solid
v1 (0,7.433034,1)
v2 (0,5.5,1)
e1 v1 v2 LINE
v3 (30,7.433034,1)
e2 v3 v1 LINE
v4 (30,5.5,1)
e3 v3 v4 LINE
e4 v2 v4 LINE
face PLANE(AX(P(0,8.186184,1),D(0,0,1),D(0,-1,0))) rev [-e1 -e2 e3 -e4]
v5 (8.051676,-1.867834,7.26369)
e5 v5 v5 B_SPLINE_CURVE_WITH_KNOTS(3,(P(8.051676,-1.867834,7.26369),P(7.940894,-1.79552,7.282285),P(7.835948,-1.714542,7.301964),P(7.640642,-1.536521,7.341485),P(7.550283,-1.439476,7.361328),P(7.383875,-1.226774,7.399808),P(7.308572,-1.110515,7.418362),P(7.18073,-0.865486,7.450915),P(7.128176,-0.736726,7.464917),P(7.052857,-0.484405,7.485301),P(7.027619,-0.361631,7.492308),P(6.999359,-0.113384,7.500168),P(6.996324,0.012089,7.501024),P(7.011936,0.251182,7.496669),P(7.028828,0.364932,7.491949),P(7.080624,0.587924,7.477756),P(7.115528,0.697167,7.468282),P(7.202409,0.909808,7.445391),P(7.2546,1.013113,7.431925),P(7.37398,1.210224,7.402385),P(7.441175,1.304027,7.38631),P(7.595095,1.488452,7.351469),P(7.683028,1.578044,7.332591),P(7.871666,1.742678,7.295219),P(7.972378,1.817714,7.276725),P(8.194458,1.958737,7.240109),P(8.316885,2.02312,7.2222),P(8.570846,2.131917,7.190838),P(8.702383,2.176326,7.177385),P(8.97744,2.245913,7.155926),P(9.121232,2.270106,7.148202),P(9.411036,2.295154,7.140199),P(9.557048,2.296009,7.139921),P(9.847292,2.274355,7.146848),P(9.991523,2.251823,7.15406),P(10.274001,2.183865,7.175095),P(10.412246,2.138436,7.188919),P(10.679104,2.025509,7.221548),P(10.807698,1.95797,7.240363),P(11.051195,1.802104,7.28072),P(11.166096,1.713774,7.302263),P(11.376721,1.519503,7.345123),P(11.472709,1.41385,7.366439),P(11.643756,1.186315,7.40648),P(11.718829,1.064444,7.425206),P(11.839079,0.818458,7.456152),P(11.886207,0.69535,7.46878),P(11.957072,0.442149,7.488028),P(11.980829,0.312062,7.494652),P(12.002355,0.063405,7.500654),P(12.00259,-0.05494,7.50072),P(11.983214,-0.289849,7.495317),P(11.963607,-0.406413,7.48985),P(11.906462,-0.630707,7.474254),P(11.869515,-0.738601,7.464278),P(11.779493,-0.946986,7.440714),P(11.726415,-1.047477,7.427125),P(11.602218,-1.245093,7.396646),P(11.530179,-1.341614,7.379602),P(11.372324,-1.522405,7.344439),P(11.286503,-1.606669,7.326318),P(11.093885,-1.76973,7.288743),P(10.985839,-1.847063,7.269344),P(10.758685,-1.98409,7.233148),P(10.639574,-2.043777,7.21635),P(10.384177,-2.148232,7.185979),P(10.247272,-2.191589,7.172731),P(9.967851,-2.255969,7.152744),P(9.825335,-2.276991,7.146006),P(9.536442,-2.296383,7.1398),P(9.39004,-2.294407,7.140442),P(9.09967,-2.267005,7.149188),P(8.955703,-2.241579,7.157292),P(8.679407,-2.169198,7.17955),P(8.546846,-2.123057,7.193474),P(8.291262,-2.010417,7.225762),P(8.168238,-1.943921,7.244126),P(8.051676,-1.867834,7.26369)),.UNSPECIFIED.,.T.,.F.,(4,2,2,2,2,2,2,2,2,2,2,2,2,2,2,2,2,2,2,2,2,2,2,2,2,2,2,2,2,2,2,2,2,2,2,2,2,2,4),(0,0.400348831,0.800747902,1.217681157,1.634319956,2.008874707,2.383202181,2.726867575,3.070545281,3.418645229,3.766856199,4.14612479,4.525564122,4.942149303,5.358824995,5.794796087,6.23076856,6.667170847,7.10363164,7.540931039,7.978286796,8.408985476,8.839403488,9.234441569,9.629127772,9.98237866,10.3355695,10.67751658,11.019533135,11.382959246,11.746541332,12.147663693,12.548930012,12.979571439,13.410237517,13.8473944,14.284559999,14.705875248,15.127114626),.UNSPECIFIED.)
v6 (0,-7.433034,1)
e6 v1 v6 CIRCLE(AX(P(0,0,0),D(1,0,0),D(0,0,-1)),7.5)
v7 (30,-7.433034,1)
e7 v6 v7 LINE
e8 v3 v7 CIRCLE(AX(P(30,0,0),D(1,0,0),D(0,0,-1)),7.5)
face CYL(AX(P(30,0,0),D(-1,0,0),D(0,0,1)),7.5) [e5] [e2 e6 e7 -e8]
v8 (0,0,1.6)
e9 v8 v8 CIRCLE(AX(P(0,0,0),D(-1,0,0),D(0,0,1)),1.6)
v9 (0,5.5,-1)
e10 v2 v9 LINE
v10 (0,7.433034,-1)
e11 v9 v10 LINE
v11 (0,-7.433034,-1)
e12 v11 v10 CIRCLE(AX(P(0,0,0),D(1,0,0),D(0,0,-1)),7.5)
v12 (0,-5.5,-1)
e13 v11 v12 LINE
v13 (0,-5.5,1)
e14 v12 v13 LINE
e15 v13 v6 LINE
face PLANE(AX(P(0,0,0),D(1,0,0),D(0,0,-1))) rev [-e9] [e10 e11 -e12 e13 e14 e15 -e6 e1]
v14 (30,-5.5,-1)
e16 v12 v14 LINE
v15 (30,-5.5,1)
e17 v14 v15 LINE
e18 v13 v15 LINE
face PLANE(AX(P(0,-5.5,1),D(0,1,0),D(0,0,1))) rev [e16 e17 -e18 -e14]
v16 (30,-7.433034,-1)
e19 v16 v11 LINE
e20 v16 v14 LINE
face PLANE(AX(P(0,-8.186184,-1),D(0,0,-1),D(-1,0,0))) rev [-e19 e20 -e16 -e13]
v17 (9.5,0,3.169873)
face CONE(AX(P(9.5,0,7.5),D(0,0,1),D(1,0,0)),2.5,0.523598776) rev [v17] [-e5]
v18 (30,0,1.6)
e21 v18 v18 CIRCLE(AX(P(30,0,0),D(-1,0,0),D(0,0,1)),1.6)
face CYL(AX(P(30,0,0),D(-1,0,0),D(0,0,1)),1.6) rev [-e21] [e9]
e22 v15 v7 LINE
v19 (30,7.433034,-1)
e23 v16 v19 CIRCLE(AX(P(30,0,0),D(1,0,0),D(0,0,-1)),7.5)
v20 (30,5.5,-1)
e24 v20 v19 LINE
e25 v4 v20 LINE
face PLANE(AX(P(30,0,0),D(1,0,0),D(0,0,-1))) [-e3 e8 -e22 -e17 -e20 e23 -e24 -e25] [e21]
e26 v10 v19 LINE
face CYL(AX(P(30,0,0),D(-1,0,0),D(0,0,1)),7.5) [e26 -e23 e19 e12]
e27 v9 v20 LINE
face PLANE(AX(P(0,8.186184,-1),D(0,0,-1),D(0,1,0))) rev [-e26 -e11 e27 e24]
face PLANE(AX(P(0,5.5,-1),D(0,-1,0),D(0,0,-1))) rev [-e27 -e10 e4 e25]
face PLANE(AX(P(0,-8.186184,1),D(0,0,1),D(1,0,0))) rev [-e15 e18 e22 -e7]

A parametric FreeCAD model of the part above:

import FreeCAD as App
import Part
import Sketcher
Q = App.Units.Quantity


def add_polygon(sketch, points):
    """Adds a closed chain of lines whose ends are joined by coincident constraints."""
    first, n = sketch.GeometryCount, len(points)
    for a, b in zip(points, points[1:] + points[:1]):
        sketch.addGeometry(Part.LineSegment(App.Vector(*a, 0), App.Vector(*b, 0)), False)
    for i in range(n):
        sketch.addConstraint(Sketcher.Constraint("Coincident", first + i, 2, first + (i + 1) % n, 1))

doc = App.newDocument("Part")
params = doc.addObject("Spreadsheet::Sheet", "Params")
for row, (alias, value) in enumerate([
    ("sketch1_diameter", "15 mm"),
    ("pad1_length", "30 mm"),
    ("sketch2_length", "5 mm"),
    ("groove_angle", "360 deg"),
    ("sketch3_diameter", "3.2 mm"),
    ("sketch4_height", "2 mm"),
], start=1):
    params.set(f"A{row}", alias)
    params.set(f"B{row}", "=" + value)
    params.setAlias(f"B{row}", alias)

body = doc.addObject("PartDesign::Body", "Body")

# Sketch on YZ plane
sketch1 = body.newObject("Sketcher::SketchObject", "Sketch")
sketch1.AttachmentSupport = (doc.getObject("YZ_Plane"), [""])
sketch1.MapMode = "FlatFace"
sketch1.addGeometry(Part.Circle(App.Vector(0, 0, 0), App.Vector(0, 0, 1), 8), False)
sketch1.addConstraint([
    Sketcher.Constraint("Coincident", 0, 3, -1, 1),
    Sketcher.Constraint("Diameter", 0, Q("15 mm")),
])
sketch1.setExpression("Constraints[1]", "Params.sketch1_diameter")
pad1 = body.newObject("PartDesign::Pad", "Pad")
pad1.Profile = sketch1
pad1.setExpression("Length", "Params.pad1_length")

# Sketch on YZ plane
sketch2 = body.newObject("Sketcher::SketchObject", "Sketch001")
sketch2.AttachmentSupport = (doc.getObject("YZ_Plane"), [""])
sketch2.MapMode = "FlatFace"
sketch2.AttachmentOffset = App.Placement(App.Vector(0, 0, 9.5), App.Rotation())
add_polygon(sketch2, [(0, 7.5), (-2.5, 7.5), (0, 3.2)])  # lines 0-2
sketch2.addConstraint([
    Sketcher.Constraint("Horizontal", 0),
    Sketcher.Constraint("Vertical", 2),
    Sketcher.Constraint("PointOnObject", 1, 2, -2),
    Sketcher.Constraint("Angle", 1, Q("-60 deg")),
    Sketcher.Constraint("Distance", 1, Q("5 mm")),
    Sketcher.Constraint("DistanceY", -1, 1, 0, 2, Q("7.5 mm")),
])
sketch2.setExpression("Constraints[7]", "Params.sketch2_length")
groove = body.newObject("PartDesign::Groove", "Groove")
groove.Profile = sketch2
groove.ReferenceAxis = (sketch2, ["V_Axis"])
groove.setExpression("Angle", "Params.groove_angle")

# Sketch on YZ plane
sketch3 = body.newObject("Sketcher::SketchObject", "Sketch002")
sketch3.AttachmentSupport = (doc.getObject("YZ_Plane"), [""])
sketch3.MapMode = "FlatFace"
sketch3.addGeometry(Part.Circle(App.Vector(0, 0, 0), App.Vector(0, 0, 1), 1.6), False)
sketch3.addConstraint([
    Sketcher.Constraint("Coincident", 0, 3, -1, 1),
    Sketcher.Constraint("Diameter", 0, Q("3.2 mm")),
])
sketch3.setExpression("Constraints[1]", "Params.sketch3_diameter")
pocket1 = body.newObject("PartDesign::Pocket", "Pocket")
pocket1.Profile = sketch3
pocket1.Type = "ThroughAll"
pocket1.Reversed = True

# Sketch on YZ plane
sketch4 = body.newObject("Sketcher::SketchObject", "Sketch003")
sketch4.AttachmentSupport = (doc.getObject("YZ_Plane"), [""])
sketch4.MapMode = "FlatFace"
sketch4.AttachmentOffset = App.Placement(App.Vector(0, 0, 30), App.Rotation())
add_polygon(sketch4, [(8.2, 1), (5.5, 1), (5.5, -1), (8.2, -1)])  # lines 0-3
add_polygon(sketch4, [(-5.5, 1), (-8.2, 1), (-8.2, -1), (-5.5, -1)])  # lines 4-7
sketch4.addConstraint([
    Sketcher.Constraint("Horizontal", 0),
    Sketcher.Constraint("Vertical", 1),
    Sketcher.Constraint("Horizontal", 2),
    Sketcher.Constraint("Vertical", 3),
    Sketcher.Constraint("Horizontal", 4),
    Sketcher.Constraint("Vertical", 5),
    Sketcher.Constraint("Horizontal", 6),
    Sketcher.Constraint("Vertical", 7),
    Sketcher.Constraint("Symmetric", 2, 2, 4, 2, -1, 1),
    Sketcher.Constraint("Symmetric", 0, 2, 6, 2, -1, 1),
    Sketcher.Constraint("Horizontal", 3, 2, 4, 2),
    Sketcher.Constraint("DistanceY", 1, 2, 1, 1, Q("2 mm")),
    Sketcher.Constraint("DistanceX", 6, 2, 1, 2, Q("11 mm")),
    Sketcher.Constraint("DistanceX", 0, 2, 0, 1, Q("2.686184 mm")),
])
sketch4.setExpression("Constraints[19]", "Params.sketch4_height")
pocket2 = body.newObject("PartDesign::Pocket", "Pocket001")
pocket2.Profile = sketch4
pocket2.Type = "ThroughAll"

doc.recompute()
